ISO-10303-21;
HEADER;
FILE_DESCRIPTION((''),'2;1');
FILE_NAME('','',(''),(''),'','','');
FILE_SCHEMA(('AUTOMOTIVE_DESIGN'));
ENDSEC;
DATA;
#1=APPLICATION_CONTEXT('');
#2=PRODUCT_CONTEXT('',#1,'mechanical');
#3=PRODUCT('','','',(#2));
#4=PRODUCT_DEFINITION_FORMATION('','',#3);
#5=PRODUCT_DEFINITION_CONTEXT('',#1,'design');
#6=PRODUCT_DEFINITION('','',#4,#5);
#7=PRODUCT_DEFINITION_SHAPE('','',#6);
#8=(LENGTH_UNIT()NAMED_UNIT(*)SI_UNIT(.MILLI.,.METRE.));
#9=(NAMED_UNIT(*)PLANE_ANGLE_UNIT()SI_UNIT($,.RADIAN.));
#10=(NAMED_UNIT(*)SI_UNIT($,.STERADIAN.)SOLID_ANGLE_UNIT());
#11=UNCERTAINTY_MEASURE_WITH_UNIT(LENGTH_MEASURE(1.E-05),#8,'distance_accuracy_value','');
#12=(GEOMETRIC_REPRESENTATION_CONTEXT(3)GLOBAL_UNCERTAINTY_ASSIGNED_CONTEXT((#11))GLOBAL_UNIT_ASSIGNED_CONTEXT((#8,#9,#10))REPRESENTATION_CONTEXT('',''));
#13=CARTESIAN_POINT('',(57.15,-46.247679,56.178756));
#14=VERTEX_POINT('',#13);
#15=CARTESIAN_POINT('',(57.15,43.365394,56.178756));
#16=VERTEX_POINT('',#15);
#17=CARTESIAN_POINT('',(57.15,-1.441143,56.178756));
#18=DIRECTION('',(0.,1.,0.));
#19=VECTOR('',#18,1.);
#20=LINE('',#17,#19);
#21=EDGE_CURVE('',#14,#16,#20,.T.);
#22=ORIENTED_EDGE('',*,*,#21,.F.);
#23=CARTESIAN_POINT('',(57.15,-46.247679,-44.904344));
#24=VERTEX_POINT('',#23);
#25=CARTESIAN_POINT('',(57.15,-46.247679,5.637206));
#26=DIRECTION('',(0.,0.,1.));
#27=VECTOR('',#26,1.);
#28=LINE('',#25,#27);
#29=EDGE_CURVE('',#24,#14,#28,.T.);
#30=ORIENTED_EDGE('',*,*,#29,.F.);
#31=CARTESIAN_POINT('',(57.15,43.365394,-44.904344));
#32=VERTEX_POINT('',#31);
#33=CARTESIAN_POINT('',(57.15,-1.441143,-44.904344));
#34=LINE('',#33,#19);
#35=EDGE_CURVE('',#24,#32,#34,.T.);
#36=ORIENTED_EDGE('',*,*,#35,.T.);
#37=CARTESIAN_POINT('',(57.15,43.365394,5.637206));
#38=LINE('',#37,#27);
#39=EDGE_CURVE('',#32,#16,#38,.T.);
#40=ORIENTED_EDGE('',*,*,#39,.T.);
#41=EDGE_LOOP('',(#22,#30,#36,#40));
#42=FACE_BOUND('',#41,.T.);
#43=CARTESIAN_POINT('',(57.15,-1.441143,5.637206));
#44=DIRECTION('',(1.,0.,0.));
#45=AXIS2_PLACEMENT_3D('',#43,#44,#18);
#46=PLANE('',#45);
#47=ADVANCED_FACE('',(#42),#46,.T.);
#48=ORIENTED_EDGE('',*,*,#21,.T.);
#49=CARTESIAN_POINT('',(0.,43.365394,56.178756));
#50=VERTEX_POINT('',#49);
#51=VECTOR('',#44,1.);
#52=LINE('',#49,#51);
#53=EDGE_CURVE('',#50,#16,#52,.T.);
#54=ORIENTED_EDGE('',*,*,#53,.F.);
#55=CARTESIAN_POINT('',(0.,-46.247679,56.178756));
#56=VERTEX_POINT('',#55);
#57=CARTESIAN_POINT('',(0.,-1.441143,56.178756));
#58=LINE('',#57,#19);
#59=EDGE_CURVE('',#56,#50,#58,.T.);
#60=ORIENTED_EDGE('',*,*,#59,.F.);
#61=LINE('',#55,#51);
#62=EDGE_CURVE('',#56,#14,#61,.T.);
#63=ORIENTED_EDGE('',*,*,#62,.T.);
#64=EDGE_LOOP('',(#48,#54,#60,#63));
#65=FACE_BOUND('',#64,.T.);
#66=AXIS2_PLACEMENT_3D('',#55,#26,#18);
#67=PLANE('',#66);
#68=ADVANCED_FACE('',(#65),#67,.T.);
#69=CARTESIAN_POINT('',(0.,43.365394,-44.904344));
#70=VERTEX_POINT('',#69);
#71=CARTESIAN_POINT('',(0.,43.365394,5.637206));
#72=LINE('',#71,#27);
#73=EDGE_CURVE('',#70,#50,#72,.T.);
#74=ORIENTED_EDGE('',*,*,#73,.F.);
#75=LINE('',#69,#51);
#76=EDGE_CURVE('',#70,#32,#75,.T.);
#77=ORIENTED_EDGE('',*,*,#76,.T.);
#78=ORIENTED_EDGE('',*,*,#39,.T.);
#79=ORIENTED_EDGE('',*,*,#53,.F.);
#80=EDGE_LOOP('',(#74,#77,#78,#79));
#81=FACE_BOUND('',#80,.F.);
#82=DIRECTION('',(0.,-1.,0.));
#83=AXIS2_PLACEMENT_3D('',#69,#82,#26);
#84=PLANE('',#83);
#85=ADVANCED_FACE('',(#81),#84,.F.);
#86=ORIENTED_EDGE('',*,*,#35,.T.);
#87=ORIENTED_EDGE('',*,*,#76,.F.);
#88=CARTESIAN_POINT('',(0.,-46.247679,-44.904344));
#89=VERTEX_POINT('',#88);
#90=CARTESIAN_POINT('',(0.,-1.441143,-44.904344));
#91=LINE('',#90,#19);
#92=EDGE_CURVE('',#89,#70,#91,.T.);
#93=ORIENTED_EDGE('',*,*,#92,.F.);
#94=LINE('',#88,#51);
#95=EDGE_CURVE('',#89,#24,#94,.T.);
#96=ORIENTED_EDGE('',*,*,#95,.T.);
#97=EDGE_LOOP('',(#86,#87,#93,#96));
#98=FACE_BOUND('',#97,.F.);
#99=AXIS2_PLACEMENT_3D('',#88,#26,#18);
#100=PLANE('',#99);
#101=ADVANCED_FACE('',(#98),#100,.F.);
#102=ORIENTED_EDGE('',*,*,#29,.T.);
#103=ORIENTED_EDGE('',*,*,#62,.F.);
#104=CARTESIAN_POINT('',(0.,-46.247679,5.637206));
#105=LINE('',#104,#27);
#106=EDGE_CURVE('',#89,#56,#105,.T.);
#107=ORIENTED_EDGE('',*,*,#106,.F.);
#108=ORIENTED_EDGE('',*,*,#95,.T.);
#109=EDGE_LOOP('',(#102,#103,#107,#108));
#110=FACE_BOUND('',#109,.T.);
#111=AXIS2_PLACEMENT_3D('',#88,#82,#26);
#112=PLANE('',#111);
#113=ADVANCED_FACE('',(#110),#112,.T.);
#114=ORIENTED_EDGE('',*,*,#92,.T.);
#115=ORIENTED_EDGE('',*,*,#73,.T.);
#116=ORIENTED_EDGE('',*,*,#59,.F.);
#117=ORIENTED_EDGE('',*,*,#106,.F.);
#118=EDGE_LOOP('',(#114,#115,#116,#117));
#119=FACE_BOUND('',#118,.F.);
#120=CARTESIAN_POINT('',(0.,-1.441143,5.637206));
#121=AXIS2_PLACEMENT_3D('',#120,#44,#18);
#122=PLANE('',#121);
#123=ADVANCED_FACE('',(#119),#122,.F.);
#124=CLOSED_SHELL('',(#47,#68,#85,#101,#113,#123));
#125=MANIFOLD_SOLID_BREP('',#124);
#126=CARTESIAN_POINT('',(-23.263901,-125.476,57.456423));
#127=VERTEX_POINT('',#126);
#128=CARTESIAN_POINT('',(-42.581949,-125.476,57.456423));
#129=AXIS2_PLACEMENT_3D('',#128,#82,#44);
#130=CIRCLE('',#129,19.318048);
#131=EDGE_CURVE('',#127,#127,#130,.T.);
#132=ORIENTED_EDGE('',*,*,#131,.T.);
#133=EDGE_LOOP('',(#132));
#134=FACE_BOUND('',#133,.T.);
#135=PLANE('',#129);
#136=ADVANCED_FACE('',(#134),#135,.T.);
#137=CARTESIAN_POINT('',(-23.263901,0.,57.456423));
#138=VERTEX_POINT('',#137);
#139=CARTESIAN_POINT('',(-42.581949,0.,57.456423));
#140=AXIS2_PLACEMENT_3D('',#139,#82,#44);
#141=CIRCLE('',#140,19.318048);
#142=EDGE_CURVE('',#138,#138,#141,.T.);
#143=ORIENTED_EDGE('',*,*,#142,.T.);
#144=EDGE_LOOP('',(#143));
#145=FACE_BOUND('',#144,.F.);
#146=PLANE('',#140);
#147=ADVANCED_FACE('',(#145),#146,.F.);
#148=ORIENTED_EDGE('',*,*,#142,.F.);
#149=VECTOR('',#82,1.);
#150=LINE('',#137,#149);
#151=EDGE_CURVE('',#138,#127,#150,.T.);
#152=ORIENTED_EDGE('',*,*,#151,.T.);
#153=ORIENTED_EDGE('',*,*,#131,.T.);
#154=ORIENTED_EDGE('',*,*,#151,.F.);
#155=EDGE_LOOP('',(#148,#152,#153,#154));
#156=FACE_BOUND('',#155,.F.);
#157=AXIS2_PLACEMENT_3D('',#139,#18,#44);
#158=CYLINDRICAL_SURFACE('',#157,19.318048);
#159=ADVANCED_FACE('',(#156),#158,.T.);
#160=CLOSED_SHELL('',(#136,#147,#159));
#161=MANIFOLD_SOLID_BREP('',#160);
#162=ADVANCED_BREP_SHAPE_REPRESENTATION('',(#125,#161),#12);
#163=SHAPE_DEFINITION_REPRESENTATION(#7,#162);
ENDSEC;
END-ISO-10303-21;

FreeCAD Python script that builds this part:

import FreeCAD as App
import Part
import Sketcher

doc = App.newDocument("Part")
params = doc.addObject("Spreadsheet::Sheet", "Params")
for row, (alias, value) in enumerate([
    ("pad1_length", "2.25 in"),
    ("pad2_length", "4.94 in"),
], start=1):
    params.set(f"A{row}", alias)
    params.set(f"B{row}", "=" + value)
    params.setAlias(f"B{row}", alias)

body = doc.addObject("PartDesign::Body", "Body")

sketch1 = body.newObject("Sketcher::SketchObject", "Sketch")
sketch1.AttachmentSupport = (doc.getObject("YZ_Plane"), [""])
sketch1.MapMode = "FlatFace"
sketch1.addGeometry([
    Part.LineSegment(App.Vector(-46, 56, 0), App.Vector(-46, -45, 0)),
    Part.LineSegment(App.Vector(-46, -45, 0), App.Vector(43, -45, 0)),
    Part.LineSegment(App.Vector(43, -45, 0), App.Vector(43, 56, 0)),
    Part.LineSegment(App.Vector(43, 56, 0), App.Vector(-46, 56, 0)),
], False)
sketch1.addConstraint([
    Sketcher.Constraint("Coincident", 0, 2, 1, 1),
    Sketcher.Constraint("Coincident", 1, 2, 2, 1),
    Sketcher.Constraint("Coincident", 2, 2, 3, 1),
    Sketcher.Constraint("Coincident", 3, 2, 0, 1),
    Sketcher.Constraint("Vertical", 0),
    Sketcher.Constraint("Horizontal", 1),
    Sketcher.Constraint("Vertical", 2),
    Sketcher.Constraint("Horizontal", 3),
    Sketcher.Constraint("DistanceY", 0, 2, 0, 1, 101.0831),
    Sketcher.Constraint("DistanceX", 1, 1, 1, 2, 89.613073),
    Sketcher.Constraint("DistanceX", 0, 2, -1, 1, 46.247679),
    Sketcher.Constraint("DistanceY", 0, 2, -1, 1, 44.904344),
])
pad1 = body.newObject("PartDesign::Pad", "Pad")
pad1.Profile = sketch1
pad1.setExpression("Length", "Params.pad1_length")
body2 = doc.addObject("PartDesign::Body", "Body001")

sketch2 = body2.newObject("Sketcher::SketchObject", "Sketch001")
sketch2.AttachmentSupport = (doc.getObject("XZ_Plane001"), [""])
sketch2.MapMode = "FlatFace"
sketch2.addGeometry(Part.Circle(App.Vector(-43, 57, 0), App.Vector(0, 0, 1), 19), False)
sketch2.addConstraint([
    Sketcher.Constraint("Diameter", 0, 38.636096),
    Sketcher.Constraint("DistanceX", 0, 3, -1, 1, 42.581949),
    Sketcher.Constraint("DistanceY", -1, 1, 0, 3, 57.456423),
])
pad2 = body2.newObject("PartDesign::Pad", "Pad001")
pad2.Profile = sketch2
pad2.setExpression("Length", "Params.pad2_length")

doc.recompute()
